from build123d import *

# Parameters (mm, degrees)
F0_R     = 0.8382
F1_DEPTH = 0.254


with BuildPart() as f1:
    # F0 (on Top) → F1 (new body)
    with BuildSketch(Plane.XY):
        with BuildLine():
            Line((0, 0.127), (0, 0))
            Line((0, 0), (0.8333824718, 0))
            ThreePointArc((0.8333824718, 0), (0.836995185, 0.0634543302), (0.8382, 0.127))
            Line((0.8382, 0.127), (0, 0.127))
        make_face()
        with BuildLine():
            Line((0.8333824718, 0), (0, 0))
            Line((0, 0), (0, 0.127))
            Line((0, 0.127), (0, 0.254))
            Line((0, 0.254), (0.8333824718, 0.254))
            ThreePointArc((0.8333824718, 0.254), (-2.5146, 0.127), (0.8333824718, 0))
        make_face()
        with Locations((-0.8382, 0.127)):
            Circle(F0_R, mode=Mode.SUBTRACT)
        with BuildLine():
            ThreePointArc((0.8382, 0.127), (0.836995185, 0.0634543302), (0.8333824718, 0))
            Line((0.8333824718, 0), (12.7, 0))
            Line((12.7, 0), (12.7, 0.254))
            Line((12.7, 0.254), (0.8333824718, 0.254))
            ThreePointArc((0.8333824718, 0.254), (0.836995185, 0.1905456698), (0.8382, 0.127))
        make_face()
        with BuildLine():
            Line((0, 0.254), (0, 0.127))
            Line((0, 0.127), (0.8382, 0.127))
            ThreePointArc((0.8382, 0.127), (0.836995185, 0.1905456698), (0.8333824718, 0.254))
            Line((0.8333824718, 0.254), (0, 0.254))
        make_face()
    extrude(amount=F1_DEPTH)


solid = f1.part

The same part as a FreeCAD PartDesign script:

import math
import FreeCAD as App
import Part
import Sketcher

V = App.Vector
Q = App.Units.Quantity

doc = App.newDocument("Part")
params = doc.addObject("Spreadsheet::Sheet", "Params")
for row, (alias, value) in enumerate([
    ("sketch1_diameter", "0.066 in"),
    ("sketch1_radius", "0.066 in"),
    ("sketch1_height", "0.01 in"),
    ("pad1_length", "0.01 in"),
], start=1):
    params.set(f"A{row}", alias)
    params.set(f"B{row}", "=" + value)
    params.setAlias(f"B{row}", alias)

body = doc.addObject("PartDesign::Body", "Body")

sketch1 = body.newObject("Sketcher::SketchObject", "Sketch")
sketch1.AttachmentSupport = (doc.getObject("XY_Plane"), [""])
sketch1.MapMode = "FlatFace"
sketch1.addGeometry([
    Part.LineSegment(V(12.7, 0.25, 0), V(0.83, 0.25, 0)),
    Part.ArcOfCircle(Part.Circle(V(-0.84, 0.13, 0), V(0, 0, 1), 1.68), math.radians(4), math.radians(356)),
    Part.LineSegment(V(0.83, 0, 0), V(12.7, 0, 0)),
    Part.LineSegment(V(12.7, 0, 0), V(12.7, 0.25, 0)),
    Part.Circle(V(-0.84, 0.13, 0), V(0, 0, 1), 0.84),
], False)
sketch1.addConstraint([
    Sketcher.Constraint("Coincident", 0, 2, 1, 1),
    Sketcher.Constraint("Coincident", 1, 2, 2, 1),
    Sketcher.Constraint("Coincident", 2, 2, 3, 1),
    Sketcher.Constraint("Coincident", 3, 2, 0, 1),
    Sketcher.Constraint("Horizontal", 0),
    Sketcher.Constraint("Horizontal", 2),
    Sketcher.Constraint("Vertical", 3),
    Sketcher.Constraint("Coincident", 4, 3, 1, 3),
    Sketcher.Constraint("PointOnObject", 1, 2, -1),
    Sketcher.Constraint("Vertical", 0, 2, 1, 2),
    Sketcher.Constraint("Diameter", 4, Q("0.066 in")),
    Sketcher.Constraint("Radius", 1, Q("0.066 in")),
    Sketcher.Constraint("DistanceY", 3, 1, 3, 2, Q("0.01 in")),
    Sketcher.Constraint("DistanceX", -1, 1, 2, 2, Q("0.5 in")),
    Sketcher.Constraint("DistanceX", 1, 3, -1, 1, Q("0.033 in")),
])
sketch1.setExpression("Constraints[10]", "Params.sketch1_diameter")
sketch1.setExpression("Constraints[11]", "Params.sketch1_radius")
sketch1.setExpression("Constraints[12]", "Params.sketch1_height")
pad1 = body.newObject("PartDesign::Pad", "Pad")
pad1.Profile = sketch1
pad1.setExpression("Length", "Params.pad1_length")

doc.recompute()
